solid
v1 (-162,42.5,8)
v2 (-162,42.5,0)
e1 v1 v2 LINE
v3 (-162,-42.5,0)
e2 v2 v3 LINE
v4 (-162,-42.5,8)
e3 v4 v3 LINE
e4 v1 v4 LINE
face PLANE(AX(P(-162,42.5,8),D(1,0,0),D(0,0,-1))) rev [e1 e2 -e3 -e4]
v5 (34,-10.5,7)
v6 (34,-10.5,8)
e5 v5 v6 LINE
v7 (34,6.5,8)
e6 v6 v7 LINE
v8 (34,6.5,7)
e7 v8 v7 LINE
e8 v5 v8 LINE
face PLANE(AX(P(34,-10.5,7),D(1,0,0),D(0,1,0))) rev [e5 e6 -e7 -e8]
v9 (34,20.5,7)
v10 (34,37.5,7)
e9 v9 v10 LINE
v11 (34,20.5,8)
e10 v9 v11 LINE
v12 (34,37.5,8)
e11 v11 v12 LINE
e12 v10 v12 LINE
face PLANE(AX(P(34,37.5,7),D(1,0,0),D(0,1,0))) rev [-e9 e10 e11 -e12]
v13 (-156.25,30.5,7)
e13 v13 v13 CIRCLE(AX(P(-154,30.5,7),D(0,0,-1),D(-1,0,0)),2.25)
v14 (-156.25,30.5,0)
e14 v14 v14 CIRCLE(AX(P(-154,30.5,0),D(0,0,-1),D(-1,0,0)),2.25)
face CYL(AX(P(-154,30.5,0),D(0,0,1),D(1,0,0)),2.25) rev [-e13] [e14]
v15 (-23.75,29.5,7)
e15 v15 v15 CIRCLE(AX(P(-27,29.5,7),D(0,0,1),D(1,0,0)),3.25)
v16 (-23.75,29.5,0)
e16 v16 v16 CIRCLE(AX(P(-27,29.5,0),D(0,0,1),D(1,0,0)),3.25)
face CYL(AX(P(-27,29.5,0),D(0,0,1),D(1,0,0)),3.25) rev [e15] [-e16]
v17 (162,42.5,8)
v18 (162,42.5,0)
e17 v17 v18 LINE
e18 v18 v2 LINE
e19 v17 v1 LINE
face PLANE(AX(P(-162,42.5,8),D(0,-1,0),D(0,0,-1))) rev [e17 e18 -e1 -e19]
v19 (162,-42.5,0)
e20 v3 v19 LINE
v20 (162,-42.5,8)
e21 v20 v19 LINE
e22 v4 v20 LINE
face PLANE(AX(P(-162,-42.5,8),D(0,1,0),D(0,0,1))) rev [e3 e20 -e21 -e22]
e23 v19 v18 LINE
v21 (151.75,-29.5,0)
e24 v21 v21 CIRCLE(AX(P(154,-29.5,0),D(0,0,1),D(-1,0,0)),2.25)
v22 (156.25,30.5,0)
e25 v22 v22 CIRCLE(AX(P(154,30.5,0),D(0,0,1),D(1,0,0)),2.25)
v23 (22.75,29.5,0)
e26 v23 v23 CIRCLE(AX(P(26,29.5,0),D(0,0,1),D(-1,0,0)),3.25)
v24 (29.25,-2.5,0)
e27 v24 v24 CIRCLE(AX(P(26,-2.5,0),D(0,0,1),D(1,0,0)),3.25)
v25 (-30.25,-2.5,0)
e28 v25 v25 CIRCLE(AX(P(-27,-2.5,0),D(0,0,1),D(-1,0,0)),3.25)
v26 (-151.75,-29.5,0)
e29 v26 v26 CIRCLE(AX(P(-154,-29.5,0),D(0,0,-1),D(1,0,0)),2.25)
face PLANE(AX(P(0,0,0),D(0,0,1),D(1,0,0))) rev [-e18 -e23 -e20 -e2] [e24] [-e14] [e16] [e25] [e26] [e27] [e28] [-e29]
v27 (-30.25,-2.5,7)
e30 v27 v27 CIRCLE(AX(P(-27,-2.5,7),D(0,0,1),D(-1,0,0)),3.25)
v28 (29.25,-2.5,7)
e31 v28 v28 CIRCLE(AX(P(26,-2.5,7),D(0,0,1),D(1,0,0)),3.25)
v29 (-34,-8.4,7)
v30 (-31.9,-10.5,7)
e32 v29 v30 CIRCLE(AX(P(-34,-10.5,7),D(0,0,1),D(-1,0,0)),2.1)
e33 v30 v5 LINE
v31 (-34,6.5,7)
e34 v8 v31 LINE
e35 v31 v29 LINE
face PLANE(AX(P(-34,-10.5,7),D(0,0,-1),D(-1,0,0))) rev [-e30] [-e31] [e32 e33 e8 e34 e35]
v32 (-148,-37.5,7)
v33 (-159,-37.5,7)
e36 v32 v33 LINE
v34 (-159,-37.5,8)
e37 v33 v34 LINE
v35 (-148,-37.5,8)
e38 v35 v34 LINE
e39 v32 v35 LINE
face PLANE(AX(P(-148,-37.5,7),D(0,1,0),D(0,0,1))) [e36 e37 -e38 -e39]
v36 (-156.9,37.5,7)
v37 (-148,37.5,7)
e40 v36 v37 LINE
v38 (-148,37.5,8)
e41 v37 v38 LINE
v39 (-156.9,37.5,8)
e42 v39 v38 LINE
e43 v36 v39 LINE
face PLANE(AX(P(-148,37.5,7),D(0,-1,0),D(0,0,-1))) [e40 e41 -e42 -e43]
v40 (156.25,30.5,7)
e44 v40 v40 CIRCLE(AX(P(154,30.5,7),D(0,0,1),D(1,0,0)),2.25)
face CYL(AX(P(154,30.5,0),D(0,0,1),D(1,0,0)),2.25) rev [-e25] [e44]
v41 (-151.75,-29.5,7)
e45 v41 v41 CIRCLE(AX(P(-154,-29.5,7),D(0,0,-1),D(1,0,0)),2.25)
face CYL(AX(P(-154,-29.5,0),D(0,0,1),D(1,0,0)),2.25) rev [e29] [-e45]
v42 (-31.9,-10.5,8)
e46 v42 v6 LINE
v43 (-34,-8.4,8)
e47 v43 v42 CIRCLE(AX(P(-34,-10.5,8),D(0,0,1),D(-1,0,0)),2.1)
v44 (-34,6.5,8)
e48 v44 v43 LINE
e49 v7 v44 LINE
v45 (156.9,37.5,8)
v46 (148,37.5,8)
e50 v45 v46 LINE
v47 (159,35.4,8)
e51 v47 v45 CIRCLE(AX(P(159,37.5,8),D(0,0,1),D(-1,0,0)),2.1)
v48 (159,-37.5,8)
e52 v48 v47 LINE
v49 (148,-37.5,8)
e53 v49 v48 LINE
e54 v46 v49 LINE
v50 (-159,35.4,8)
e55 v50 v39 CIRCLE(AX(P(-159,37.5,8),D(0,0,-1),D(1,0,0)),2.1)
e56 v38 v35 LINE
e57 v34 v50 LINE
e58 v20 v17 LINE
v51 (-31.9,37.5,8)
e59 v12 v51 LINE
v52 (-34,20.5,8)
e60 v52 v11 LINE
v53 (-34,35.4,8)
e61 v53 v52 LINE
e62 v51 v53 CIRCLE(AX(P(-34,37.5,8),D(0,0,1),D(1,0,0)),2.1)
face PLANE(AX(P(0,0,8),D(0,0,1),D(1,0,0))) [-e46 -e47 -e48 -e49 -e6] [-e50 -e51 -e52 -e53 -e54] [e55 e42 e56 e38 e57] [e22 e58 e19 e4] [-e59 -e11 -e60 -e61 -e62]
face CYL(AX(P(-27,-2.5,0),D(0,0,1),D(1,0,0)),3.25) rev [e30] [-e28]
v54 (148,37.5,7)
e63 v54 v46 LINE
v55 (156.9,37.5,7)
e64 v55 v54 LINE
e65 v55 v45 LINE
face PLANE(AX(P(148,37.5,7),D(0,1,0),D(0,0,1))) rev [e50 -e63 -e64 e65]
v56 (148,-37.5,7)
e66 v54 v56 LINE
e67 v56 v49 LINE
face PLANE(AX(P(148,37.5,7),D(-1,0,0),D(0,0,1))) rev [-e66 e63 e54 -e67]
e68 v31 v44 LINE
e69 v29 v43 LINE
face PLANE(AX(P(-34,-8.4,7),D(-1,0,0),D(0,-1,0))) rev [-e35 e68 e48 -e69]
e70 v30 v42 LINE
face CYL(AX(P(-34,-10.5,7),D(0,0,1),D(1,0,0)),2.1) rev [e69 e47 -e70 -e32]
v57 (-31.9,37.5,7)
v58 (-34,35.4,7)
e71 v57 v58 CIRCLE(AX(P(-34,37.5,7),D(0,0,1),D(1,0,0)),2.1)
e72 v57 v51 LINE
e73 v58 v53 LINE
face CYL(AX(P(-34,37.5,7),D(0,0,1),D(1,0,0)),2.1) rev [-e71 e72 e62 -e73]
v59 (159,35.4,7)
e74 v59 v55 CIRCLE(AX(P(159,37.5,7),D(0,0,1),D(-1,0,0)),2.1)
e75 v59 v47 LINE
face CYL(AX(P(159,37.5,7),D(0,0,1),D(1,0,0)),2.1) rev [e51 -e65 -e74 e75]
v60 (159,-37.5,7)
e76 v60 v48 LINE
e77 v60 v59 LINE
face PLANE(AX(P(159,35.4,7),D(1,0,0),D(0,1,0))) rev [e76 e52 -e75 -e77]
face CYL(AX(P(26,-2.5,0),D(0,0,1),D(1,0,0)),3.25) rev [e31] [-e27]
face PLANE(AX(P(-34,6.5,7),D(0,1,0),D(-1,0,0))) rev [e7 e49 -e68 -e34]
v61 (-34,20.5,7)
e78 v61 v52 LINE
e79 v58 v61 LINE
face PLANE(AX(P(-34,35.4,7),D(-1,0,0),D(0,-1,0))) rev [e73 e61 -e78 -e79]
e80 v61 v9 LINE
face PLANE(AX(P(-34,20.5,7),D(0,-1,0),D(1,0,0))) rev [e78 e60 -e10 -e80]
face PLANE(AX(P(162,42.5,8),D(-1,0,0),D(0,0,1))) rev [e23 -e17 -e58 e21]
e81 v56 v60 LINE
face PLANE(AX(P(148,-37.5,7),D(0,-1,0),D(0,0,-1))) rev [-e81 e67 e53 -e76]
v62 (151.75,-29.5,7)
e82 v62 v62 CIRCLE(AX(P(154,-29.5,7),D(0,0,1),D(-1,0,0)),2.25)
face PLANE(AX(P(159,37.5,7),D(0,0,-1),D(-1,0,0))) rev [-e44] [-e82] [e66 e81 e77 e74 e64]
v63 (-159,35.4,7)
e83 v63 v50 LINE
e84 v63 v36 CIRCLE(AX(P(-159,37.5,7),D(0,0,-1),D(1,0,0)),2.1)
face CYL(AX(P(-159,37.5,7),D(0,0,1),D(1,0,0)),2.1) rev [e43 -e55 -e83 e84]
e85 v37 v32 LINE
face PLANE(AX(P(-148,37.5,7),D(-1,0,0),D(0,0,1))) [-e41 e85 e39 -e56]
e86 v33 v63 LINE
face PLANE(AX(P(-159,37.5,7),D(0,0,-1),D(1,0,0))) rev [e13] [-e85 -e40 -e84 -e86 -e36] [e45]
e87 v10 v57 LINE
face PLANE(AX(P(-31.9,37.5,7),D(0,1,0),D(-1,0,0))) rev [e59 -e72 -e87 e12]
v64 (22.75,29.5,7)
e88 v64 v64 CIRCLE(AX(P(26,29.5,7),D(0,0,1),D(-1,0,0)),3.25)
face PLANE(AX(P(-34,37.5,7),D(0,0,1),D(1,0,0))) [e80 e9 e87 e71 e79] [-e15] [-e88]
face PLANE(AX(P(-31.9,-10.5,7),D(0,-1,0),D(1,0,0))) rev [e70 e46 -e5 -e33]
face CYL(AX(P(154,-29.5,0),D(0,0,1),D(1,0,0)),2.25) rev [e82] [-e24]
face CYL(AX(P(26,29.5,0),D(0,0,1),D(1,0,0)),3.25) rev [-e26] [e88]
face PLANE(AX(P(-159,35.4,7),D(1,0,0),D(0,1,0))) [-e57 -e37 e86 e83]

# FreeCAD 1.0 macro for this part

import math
import FreeCAD as App
import Part
import Sketcher
from FreeCAD import Vector
Q = App.Units.Quantity

doc = App.newDocument("Part")
params = doc.addObject("Spreadsheet::Sheet", "Params")
for row, (alias, value) in enumerate([
    ("sketch1_width", "324 mm"),
    ("sketch1_height", "85 mm"),
    ("pad1_length", "8 mm"),
    ("sketch2_radius", "2.1 mm"),
    ("sketch2_width", "11 mm"),
    ("sketch2_height", "75 mm"),
    ("pocket1_length", "1 mm"),
    ("sketch3_diameter", "4.5 mm"),
    ("sketch4_radius", "2.1 mm"),
    ("sketch4_width", "68 mm"),
    ("sketch4_height", "17 mm"),
    ("pocket3_length", "1 mm"),
    ("sketch5_diameter", "6.5 mm"),
], start=1):
    params.set(f"A{row}", alias)
    params.set(f"B{row}", "=" + value)
    params.setAlias(f"B{row}", alias)

body = doc.addObject("PartDesign::Body", "Body")

sketch1 = doc.addObject("Sketcher::SketchObject", "Sketch")
body.addObject(sketch1)
sketch1.AttachmentSupport = (doc.XY_Plane, [""])
sketch1.MapMode = "FlatFace"
sketch1.addGeometry(Part.LineSegment(Vector(-162, 42, 0), Vector(-162, -42, 0)), False)
sketch1.addGeometry(Part.LineSegment(Vector(-162, -42, 0), Vector(162, -42, 0)), False)
sketch1.addGeometry(Part.LineSegment(Vector(162, -42, 0), Vector(162, 42, 0)), False)
sketch1.addGeometry(Part.LineSegment(Vector(162, 42, 0), Vector(-162, 42, 0)), False)
sketch1.addConstraint(Sketcher.Constraint("Coincident", 0, 2, 1, 1))
sketch1.addConstraint(Sketcher.Constraint("Coincident", 1, 2, 2, 1))
sketch1.addConstraint(Sketcher.Constraint("Coincident", 2, 2, 3, 1))
sketch1.addConstraint(Sketcher.Constraint("Coincident", 3, 2, 0, 1))
sketch1.addConstraint(Sketcher.Constraint("Vertical", 0))
sketch1.addConstraint(Sketcher.Constraint("Horizontal", 1))
sketch1.addConstraint(Sketcher.Constraint("Vertical", 2))
sketch1.addConstraint(Sketcher.Constraint("Horizontal", 3))
sketch1.addConstraint(Sketcher.Constraint("Symmetric", 0, 2, 2, 2, -1, 1))
sketch1.addConstraint(Sketcher.Constraint("DistanceX", 1, 1, 1, 2, Q("324 mm")))
sketch1.addConstraint(Sketcher.Constraint("DistanceY", 0, 2, 0, 1, Q("85 mm")))
sketch1.setExpression("Constraints[9]", "Params.sketch1_width")
sketch1.setExpression("Constraints[10]", "Params.sketch1_height")
pad1 = doc.addObject("PartDesign::Pad", "Pad")
body.addObject(pad1)
pad1.Profile = sketch1
pad1.setExpression("Length", "Params.pad1_length")

sketch2 = doc.addObject("Sketcher::SketchObject", "Sketch001")
body.addObject(sketch2)
sketch2.AttachmentSupport = (doc.XY_Plane, [""])
sketch2.MapMode = "FlatFace"
sketch2.AttachmentOffset = App.Placement(Vector(0, 0, 8), App.Rotation())
sketch2.addGeometry(Part.LineSegment(Vector(156.9, 37.5, 0), Vector(148, 37.5, 0)), False)
sketch2.addGeometry(Part.LineSegment(Vector(148, 37.5, 0), Vector(148, -37.5, 0)), False)
sketch2.addGeometry(Part.LineSegment(Vector(148, -37.5, 0), Vector(159, -37.5, 0)), False)
sketch2.addGeometry(Part.LineSegment(Vector(159, -37.5, 0), Vector(159, 35.4, 0)), False)
sketch2.addGeometry(Part.ArcOfCircle(Part.Circle(Vector(159, 37.5, 0), Vector(0, 0, 1), 2.1), math.radians(-90), math.radians(180)), False)
sketch2.addConstraint(Sketcher.Constraint("Coincident", 0, 2, 1, 1))
sketch2.addConstraint(Sketcher.Constraint("Coincident", 1, 2, 2, 1))
sketch2.addConstraint(Sketcher.Constraint("Coincident", 2, 2, 3, 1))
sketch2.addConstraint(Sketcher.Constraint("Coincident", 3, 2, 4, 1))
sketch2.addConstraint(Sketcher.Constraint("Coincident", 4, 2, 0, 1))
sketch2.addConstraint(Sketcher.Constraint("Horizontal", 0))
sketch2.addConstraint(Sketcher.Constraint("Vertical", 1))
sketch2.addConstraint(Sketcher.Constraint("Horizontal", 2))
sketch2.addConstraint(Sketcher.Constraint("Vertical", 3))
sketch2.addConstraint(Sketcher.Constraint("Horizontal", 4, 3, 0, 2))
sketch2.addConstraint(Sketcher.Constraint("Vertical", 4, 3, 2, 2))
sketch2.addConstraint(Sketcher.Constraint("Radius", 4, Q("2.1 mm")))
sketch2.addConstraint(Sketcher.Constraint("DistanceX", 2, 1, 2, 2, Q("11 mm")))
sketch2.addConstraint(Sketcher.Constraint("DistanceY", 1, 2, 1, 1, Q("75 mm")))
sketch2.addConstraint(Sketcher.Constraint("DistanceX", -1, 1, 4, 3, Q("159 mm")))
sketch2.addConstraint(Sketcher.Constraint("DistanceY", -1, 1, 4, 3, Q("37.5 mm")))
sketch2.setExpression("Constraints[11]", "Params.sketch2_radius")
sketch2.setExpression("Constraints[12]", "Params.sketch2_width")
sketch2.setExpression("Constraints[13]", "Params.sketch2_height")
pocket1 = doc.addObject("PartDesign::Pocket", "Pocket")
body.addObject(pocket1)
pocket1.Profile = sketch2
pocket1.setExpression("Length", "Params.pocket1_length")
doc.recompute()

mirrored = doc.addObject("PartDesign::Mirrored", "Mirrored")
body.addObject(mirrored)
mirrored.Originals = [pocket1]
mirrored.MirrorPlane = (doc.YZ_Plane, [""])
body.Tip = mirrored

sketch3 = doc.addObject("Sketcher::SketchObject", "Sketch002")
body.addObject(sketch3)
sketch3.AttachmentSupport = (doc.XY_Plane, [""])
sketch3.MapMode = "FlatFace"
sketch3.AttachmentOffset = App.Placement(Vector(0, 0, 7), App.Rotation())
sketch3.addGeometry(Part.Circle(Vector(154, 30.5, 0), Vector(0, 0, 1), 2.2), False)
sketch3.addGeometry(Part.Circle(Vector(154, -29.5, 0), Vector(0, 0, 1), 2.2), False)
sketch3.addConstraint(Sketcher.Constraint("Equal", 0, 1))
sketch3.addConstraint(Sketcher.Constraint("Vertical", 0, 3, 1, 3))
sketch3.addConstraint(Sketcher.Constraint("Diameter", 0, Q("4.5 mm")))
sketch3.addConstraint(Sketcher.Constraint("DistanceX", -1, 1, 0, 3, Q("154 mm")))
sketch3.addConstraint(Sketcher.Constraint("DistanceY", 1, 3, 0, 3, Q("60 mm")))
sketch3.addConstraint(Sketcher.Constraint("DistanceY", -1, 1, 0, 3, Q("30.5 mm")))
sketch3.setExpression("Constraints[2]", "Params.sketch3_diameter")
pocket2 = doc.addObject("PartDesign::Pocket", "Pocket001")
body.addObject(pocket2)
pocket2.Profile = sketch3
pocket2.Type = "ThroughAll"
doc.recompute()

mirrored2 = doc.addObject("PartDesign::Mirrored", "Mirrored001")
body.addObject(mirrored2)
mirrored2.Originals = [pocket2]
mirrored2.MirrorPlane = (doc.YZ_Plane, [""])
body.Tip = mirrored2

sketch4 = doc.addObject("Sketcher::SketchObject", "Sketch003")
body.addObject(sketch4)
sketch4.AttachmentSupport = (doc.XY_Plane, [""])
sketch4.MapMode = "FlatFace"
sketch4.AttachmentOffset = App.Placement(Vector(0, 0, 8), App.Rotation())
sketch4.addGeometry(Part.LineSegment(Vector(34, 37.5, 0), Vector(-31.9, 37.5, 0)), False)
sketch4.addGeometry(Part.ArcOfCircle(Part.Circle(Vector(-34, 37.5, 0), Vector(0, 0, 1), 2.1), math.radians(0), math.radians(270)), False)
sketch4.addGeometry(Part.LineSegment(Vector(-34, 35.4, 0), Vector(-34, 20.5, 0)), False)
sketch4.addGeometry(Part.LineSegment(Vector(-34, 20.5, 0), Vector(34, 20.5, 0)), False)
sketch4.addGeometry(Part.LineSegment(Vector(34, 20.5, 0), Vector(34, 37.5, 0)), False)
sketch4.addGeometry(Part.LineSegment(Vector(34, -10.5, 0), Vector(34, 6.5, 0)), False)
sketch4.addGeometry(Part.LineSegment(Vector(34, 6.5, 0), Vector(-34, 6.5, 0)), False)
sketch4.addGeometry(Part.LineSegment(Vector(-34, 6.5, 0), Vector(-34, -8.4, 0)), False)
sketch4.addGeometry(Part.ArcOfCircle(Part.Circle(Vector(-34, -10.5, 0), Vector(0, 0, 1), 2.1), math.radians(90), math.radians(360)), False)
sketch4.addGeometry(Part.LineSegment(Vector(-31.9, -10.5, 0), Vector(34, -10.5, 0)), False)
sketch4.addConstraint(Sketcher.Constraint("Coincident", 0, 2, 1, 1))
sketch4.addConstraint(Sketcher.Constraint("Coincident", 1, 2, 2, 1))
sketch4.addConstraint(Sketcher.Constraint("Coincident", 2, 2, 3, 1))
sketch4.addConstraint(Sketcher.Constraint("Coincident", 3, 2, 4, 1))
sketch4.addConstraint(Sketcher.Constraint("Coincident", 4, 2, 0, 1))
sketch4.addConstraint(Sketcher.Constraint("Coincident", 5, 2, 6, 1))
sketch4.addConstraint(Sketcher.Constraint("Coincident", 6, 2, 7, 1))
sketch4.addConstraint(Sketcher.Constraint("Coincident", 7, 2, 8, 1))
sketch4.addConstraint(Sketcher.Constraint("Coincident", 8, 2, 9, 1))
sketch4.addConstraint(Sketcher.Constraint("Coincident", 9, 2, 5, 1))
sketch4.addConstraint(Sketcher.Constraint("Horizontal", 0))
sketch4.addConstraint(Sketcher.Constraint("Vertical", 2))
sketch4.addConstraint(Sketcher.Constraint("Horizontal", 3))
sketch4.addConstraint(Sketcher.Constraint("Vertical", 4))
sketch4.addConstraint(Sketcher.Constraint("Vertical", 5))
sketch4.addConstraint(Sketcher.Constraint("Horizontal", 6))
sketch4.addConstraint(Sketcher.Constraint("Vertical", 7))
sketch4.addConstraint(Sketcher.Constraint("Horizontal", 9))
sketch4.addConstraint(Sketcher.Constraint("Equal", 1, 8))
sketch4.addConstraint(Sketcher.Constraint("Horizontal", 1, 3, 0, 2))
sketch4.addConstraint(Sketcher.Constraint("Vertical", 1, 3, 8, 3))
sketch4.addConstraint(Sketcher.Constraint("Vertical", 8, 3, 1, 2))
sketch4.addConstraint(Sketcher.Constraint("Vertical", 4, 2, 5, 2))
sketch4.addConstraint(Sketcher.Constraint("Vertical", 2, 2, 6, 2))
sketch4.addConstraint(Sketcher.Constraint("Equal", 4, 5))
sketch4.addConstraint(Sketcher.Constraint("Equal", 2, 7))
sketch4.addConstraint(Sketcher.Constraint("Radius", 1, Q("2.1 mm")))
sketch4.addConstraint(Sketcher.Constraint("DistanceX", 3, 1, 3, 2, Q("68 mm")))
sketch4.addConstraint(Sketcher.Constraint("DistanceY", 4, 1, 4, 2, Q("17 mm")))
sketch4.addConstraint(Sketcher.Constraint("DistanceX", 1, 3, -1, 1, Q("34 mm")))
sketch4.addConstraint(Sketcher.Constraint("DistanceY", 8, 3, 1, 3, Q("48 mm")))
sketch4.addConstraint(Sketcher.Constraint("DistanceY", -1, 1, 1, 3, Q("37.5 mm")))
sketch4.setExpression("Constraints[26]", "Params.sketch4_radius")
sketch4.setExpression("Constraints[27]", "Params.sketch4_width")
sketch4.setExpression("Constraints[28]", "Params.sketch4_height")
pocket3 = doc.addObject("PartDesign::Pocket", "Pocket002")
body.addObject(pocket3)
pocket3.Profile = sketch4
pocket3.setExpression("Length", "Params.pocket3_length")

sketch5 = doc.addObject("Sketcher::SketchObject", "Sketch004")
body.addObject(sketch5)
sketch5.AttachmentSupport = (doc.XY_Plane, [""])
sketch5.MapMode = "FlatFace"
sketch5.AttachmentOffset = App.Placement(Vector(0, 0, 7), App.Rotation())
sketch5.addGeometry(Part.Circle(Vector(-27, 29.5, 0), Vector(0, 0, 1), 3.2), False)
sketch5.addGeometry(Part.Circle(Vector(26, 29.5, 0), Vector(0, 0, 1), 3.2), False)
sketch5.addGeometry(Part.Circle(Vector(26, -2.5, 0), Vector(0, 0, 1), 3.2), False)
sketch5.addGeometry(Part.Circle(Vector(-27, -2.5, 0), Vector(0, 0, 1), 3.2), False)
sketch5.addConstraint(Sketcher.Constraint("Equal", 0, 1))
sketch5.addConstraint(Sketcher.Constraint("Equal", 1, 2))
sketch5.addConstraint(Sketcher.Constraint("Equal", 2, 3))
sketch5.addConstraint(Sketcher.Constraint("Horizontal", 0, 3, 1, 3))
sketch5.addConstraint(Sketcher.Constraint("Horizontal", 2, 3, 3, 3))
sketch5.addConstraint(Sketcher.Constraint("Vertical", 1, 3, 2, 3))
sketch5.addConstraint(Sketcher.Constraint("Vertical", 0, 3, 3, 3))
sketch5.addConstraint(Sketcher.Constraint("Diameter", 0, Q("6.5 mm")))
sketch5.addConstraint(Sketcher.Constraint("DistanceX", 0, 3, -1, 1, Q("27 mm")))
sketch5.addConstraint(Sketcher.Constraint("DistanceX", -1, 1, 1, 3, Q("26 mm")))
sketch5.addConstraint(Sketcher.Constraint("DistanceY", 2, 3, 1, 3, Q("32 mm")))
sketch5.addConstraint(Sketcher.Constraint("DistanceY", -1, 1, 0, 3, Q("29.5 mm")))
sketch5.setExpression("Constraints[7]", "Params.sketch5_diameter")
pocket4 = doc.addObject("PartDesign::Pocket", "Pocket003")
body.addObject(pocket4)
pocket4.Profile = sketch5
pocket4.Type = "ThroughAll"

doc.recompute()
